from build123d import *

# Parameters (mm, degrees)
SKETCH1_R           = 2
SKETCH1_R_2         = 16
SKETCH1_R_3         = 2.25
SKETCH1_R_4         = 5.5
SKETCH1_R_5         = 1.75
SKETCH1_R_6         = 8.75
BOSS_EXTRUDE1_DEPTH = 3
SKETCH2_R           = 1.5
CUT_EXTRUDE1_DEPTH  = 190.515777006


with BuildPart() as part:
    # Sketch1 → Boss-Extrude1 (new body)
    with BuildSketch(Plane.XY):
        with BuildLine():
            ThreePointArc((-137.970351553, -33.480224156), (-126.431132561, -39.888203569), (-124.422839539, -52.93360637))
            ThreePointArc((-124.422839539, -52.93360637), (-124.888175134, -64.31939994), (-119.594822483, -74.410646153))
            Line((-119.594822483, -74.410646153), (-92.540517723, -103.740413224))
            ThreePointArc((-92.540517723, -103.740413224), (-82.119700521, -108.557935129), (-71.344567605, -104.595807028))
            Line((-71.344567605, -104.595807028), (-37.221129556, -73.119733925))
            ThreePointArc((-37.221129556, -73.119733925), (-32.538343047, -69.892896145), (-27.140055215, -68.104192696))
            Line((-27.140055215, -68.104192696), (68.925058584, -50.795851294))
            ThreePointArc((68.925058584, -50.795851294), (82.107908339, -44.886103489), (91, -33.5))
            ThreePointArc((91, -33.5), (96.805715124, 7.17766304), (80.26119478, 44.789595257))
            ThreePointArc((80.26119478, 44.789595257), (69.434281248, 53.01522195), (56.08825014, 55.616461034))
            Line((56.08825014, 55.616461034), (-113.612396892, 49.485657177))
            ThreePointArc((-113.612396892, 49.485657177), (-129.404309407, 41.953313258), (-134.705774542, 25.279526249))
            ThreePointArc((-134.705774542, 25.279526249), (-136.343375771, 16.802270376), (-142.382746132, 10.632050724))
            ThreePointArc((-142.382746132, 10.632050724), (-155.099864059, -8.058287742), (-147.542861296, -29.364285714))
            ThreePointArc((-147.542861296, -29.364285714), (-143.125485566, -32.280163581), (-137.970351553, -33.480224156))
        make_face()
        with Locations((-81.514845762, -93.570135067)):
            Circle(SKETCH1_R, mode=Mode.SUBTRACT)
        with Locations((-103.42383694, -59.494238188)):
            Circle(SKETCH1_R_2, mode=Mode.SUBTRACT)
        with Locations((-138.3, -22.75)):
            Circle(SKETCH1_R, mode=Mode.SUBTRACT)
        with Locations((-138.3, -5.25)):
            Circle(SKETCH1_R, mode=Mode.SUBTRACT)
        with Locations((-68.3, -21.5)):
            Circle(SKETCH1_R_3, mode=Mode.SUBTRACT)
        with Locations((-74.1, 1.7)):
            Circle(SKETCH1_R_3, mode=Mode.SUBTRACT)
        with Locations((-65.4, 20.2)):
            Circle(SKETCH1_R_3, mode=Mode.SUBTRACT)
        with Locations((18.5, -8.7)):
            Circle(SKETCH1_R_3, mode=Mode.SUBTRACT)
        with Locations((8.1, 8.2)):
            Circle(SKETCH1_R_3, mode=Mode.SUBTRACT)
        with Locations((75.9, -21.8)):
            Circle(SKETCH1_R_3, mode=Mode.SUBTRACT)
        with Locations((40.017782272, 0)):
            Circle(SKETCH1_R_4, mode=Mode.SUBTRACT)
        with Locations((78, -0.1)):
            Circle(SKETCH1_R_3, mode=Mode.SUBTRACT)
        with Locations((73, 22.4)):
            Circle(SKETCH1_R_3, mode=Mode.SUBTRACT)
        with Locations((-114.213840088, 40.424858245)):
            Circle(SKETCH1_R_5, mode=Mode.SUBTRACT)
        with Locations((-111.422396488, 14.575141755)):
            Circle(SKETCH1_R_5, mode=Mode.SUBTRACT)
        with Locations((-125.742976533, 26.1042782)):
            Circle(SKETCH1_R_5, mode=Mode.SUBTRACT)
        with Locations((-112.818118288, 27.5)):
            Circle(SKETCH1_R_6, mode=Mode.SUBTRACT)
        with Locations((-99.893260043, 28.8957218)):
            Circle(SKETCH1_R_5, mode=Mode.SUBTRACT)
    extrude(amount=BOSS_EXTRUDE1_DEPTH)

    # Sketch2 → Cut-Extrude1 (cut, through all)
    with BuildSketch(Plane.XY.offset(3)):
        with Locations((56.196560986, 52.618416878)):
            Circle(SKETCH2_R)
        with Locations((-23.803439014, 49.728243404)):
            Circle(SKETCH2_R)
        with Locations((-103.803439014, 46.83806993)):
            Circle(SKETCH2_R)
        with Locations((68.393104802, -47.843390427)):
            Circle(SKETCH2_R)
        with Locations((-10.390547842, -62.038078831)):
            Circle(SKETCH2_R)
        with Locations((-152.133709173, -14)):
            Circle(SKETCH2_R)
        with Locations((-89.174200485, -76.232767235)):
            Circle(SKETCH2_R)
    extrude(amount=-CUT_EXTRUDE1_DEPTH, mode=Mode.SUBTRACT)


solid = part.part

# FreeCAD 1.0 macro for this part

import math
import FreeCAD as App
import Part
import Sketcher

V = App.Vector
Q = App.Units.Quantity

doc = App.newDocument("Part")
body = doc.addObject("PartDesign::Body", "Body")

# Sketch on XY plane
sketch1 = doc.addObject("Sketcher::SketchObject", "Sketch")
body.addObject(sketch1)
sketch1.AttachmentSupport = (doc.XY_Plane, [""])
sketch1.MapMode = "FlatFace"
sketch1.addGeometry([
    Part.ArcOfCircle(Part.Circle(V(-138.740341, -48.460448, 0), V(0, 0, 1), 15), math.radians(-17.350155), math.radians(87.057563)),  # 0
    Part.ArcOfCircle(Part.Circle(V(-103.423837, -59.494238, 0), V(0, 0, 1), 22), math.radians(162.649844), math.radians(222.688998)),  # 1
    Part.LineSegment(V(-119.594822, -74.410646, 0), V(-92.540518, -103.740413, 0)),  # 2
    Part.ArcOfCircle(Part.Circle(V(-81.514846, -93.570135, 0), V(0, 0, 1), 15), math.radians(-137.311002), math.radians(-47.311002)),  # 3
    Part.LineSegment(V(-71.344568, -104.595807, 0), V(-37.22113, -73.119734, 0)),  # 4
    Part.ArcOfCircle(Part.Circle(V(-23.569947, -87.919079, 0), V(0, 0, 1), 20.133936), math.radians(100.213575), math.radians(132.688998)),  # 5
    Part.LineSegment(V(-27.140055, -68.104193, 0), V(68.925059, -50.795851, 0)),  # 6
    Part.ArcOfCircle(Part.Circle(V(63.605521, -21.271243, 0), V(0, 0, 1), 30), math.radians(-79.786425), math.radians(-24.055744)),  # 7
    Part.ArcOfCircle(Part.Circle(V(22.658915, -2.992884, 0), V(0, 0, 1), 74.841085), math.radians(-24.055744), math.radians(39.676525)),  # 8
    Part.ArcOfCircle(Part.Circle(V(57.171359, 25.636019, 0), V(0, 0, 1), 30), math.radians(39.676525), math.radians(92.069034)),  # 9
    Part.LineSegment(V(56.08825, 55.616461, 0), V(-113.612397, 49.485657, 0)),  # 10
    Part.ArcOfCircle(Part.Circle(V(-112.818118, 27.5, 0), V(0, 0, 1), 22), math.radians(92.069032), math.radians(185.792763)),  # 11
    Part.ArcOfCircle(Part.Circle(V(-149.629177, 23.765567, 0), V(0, 0, 1), 15), math.radians(-61.112239), math.radians(5.792763)),  # 12
    Part.ArcOfCircle(Part.Circle(V(-130.305362, -11.257143, 0), V(0, 0, 1), 25), math.radians(118.887761), math.radians(226.40946)),  # 13
    Part.ArcOfCircle(Part.Circle(V(-137.200362, -18.5, 0), V(0, 0, 1), 15), math.radians(-133.59054), math.radians(-92.942437)),  # 14
    Part.Circle(V(-81.514846, -93.570135, 0), V(0, 0, 1), 2),  # 15
    Part.Circle(V(-103.423837, -59.494238, 0), V(0, 0, 1), 16),  # 16
    Part.Circle(V(-138.3, -22.75, 0), V(0, 0, 1), 2),  # 17
    Part.Circle(V(-138.3, -5.25, 0), V(0, 0, 1), 2),  # 18
    Part.Circle(V(-68.3, -21.5, 0), V(0, 0, 1), 2.25),  # 19
    Part.Circle(V(-74.1, 1.7, 0), V(0, 0, 1), 2.25),  # 20
    Part.Circle(V(-111.422396, 14.575142, 0), V(0, 0, 1), 1.75),  # 21
    Part.Circle(V(-125.742977, 26.104278, 0), V(0, 0, 1), 1.75),  # 22
    Part.Circle(V(-112.818118, 27.5, 0), V(0, 0, 1), 8.75),  # 23
    Part.Circle(V(-114.21384, 40.424858, 0), V(0, 0, 1), 1.75),  # 24
    Part.Circle(V(-99.89326, 28.895722, 0), V(0, 0, 1), 1.75),  # 25
    Part.Circle(V(-65.4, 20.2, 0), V(0, 0, 1), 2.25),  # 26
    Part.Circle(V(18.5, -8.7, 0), V(0, 0, 1), 2.25),  # 27
    Part.Circle(V(75.9, -21.8, 0), V(0, 0, 1), 2.25),  # 28
    Part.Circle(V(40.017782, 0, 0), V(0, 0, 1), 5.5),  # 29
    Part.Circle(V(78, -0.1, 0), V(0, 0, 1), 2.25),  # 30
    Part.Circle(V(8.1, 8.2, 0), V(0, 0, 1), 2.25),  # 31
    Part.Circle(V(73, 22.4, 0), V(0, 0, 1), 2.25),  # 32
], False)
sketch1.addConstraint([
    Sketcher.Constraint("Tangent", 0, 1, 1, 1),
    Sketcher.Constraint("Tangent", 1, 2, 2, 1),
    Sketcher.Constraint("Tangent", 2, 2, 3, 1),
    Sketcher.Constraint("Tangent", 3, 2, 4, 1),
    Sketcher.Constraint("Tangent", 4, 2, 5, 2),
    Sketcher.Constraint("Tangent", 5, 1, 6, 1),
    Sketcher.Constraint("Tangent", 6, 2, 7, 1),
    Sketcher.Constraint("Tangent", 7, 2, 8, 1),
    Sketcher.Constraint("Tangent", 8, 2, 9, 1),
    Sketcher.Constraint("Tangent", 9, 2, 10, 1),
    Sketcher.Constraint("Tangent", 10, 2, 11, 1),
    Sketcher.Constraint("Tangent", 11, 2, 12, 2),
    Sketcher.Constraint("Tangent", 12, 1, 13, 1),
    Sketcher.Constraint("Tangent", 13, 2, 14, 1),
    Sketcher.Constraint("Tangent", 14, 2, 0, 2),
    Sketcher.Constraint("Coincident", 15, 3, 3, 3),
    Sketcher.Constraint("Coincident", 16, 3, 1, 3),
    Sketcher.Constraint("Coincident", 23, 3, 11, 3),
    Sketcher.Constraint("Equal", 0, 3),
    Sketcher.Constraint("Equal", 7, 9),
    Sketcher.Constraint("Equal", 1, 11),
    Sketcher.Constraint("Equal", 3, 12),
    Sketcher.Constraint("Equal", 12, 14),
    Sketcher.Constraint("Equal", 15, 17),
    Sketcher.Constraint("Equal", 17, 18),
    Sketcher.Constraint("Equal", 19, 20),
    Sketcher.Constraint("Equal", 21, 22),
    Sketcher.Constraint("Equal", 22, 24),
    Sketcher.Constraint("Equal", 24, 25),
    Sketcher.Constraint("Equal", 20, 26),
    Sketcher.Constraint("Equal", 26, 27),
    Sketcher.Constraint("Equal", 27, 28),
    Sketcher.Constraint("Equal", 28, 30),
    Sketcher.Constraint("Equal", 30, 31),
    Sketcher.Constraint("Equal", 31, 32),
    Sketcher.Constraint("PointOnObject", 29, 3, -1),
    Sketcher.Constraint("Perpendicular", 2, 4),
    Sketcher.Constraint("Vertical", 17, 3, 18, 3),
    Sketcher.Constraint("Diameter", 15, Q("4 mm")),
    Sketcher.Constraint("Diameter", 16, Q("32 mm")),
    Sketcher.Constraint("Diameter", 29, Q("11 mm")),
    Sketcher.Constraint("Radius", 0, Q("15 mm")),
    Sketcher.Constraint("Radius", 1, Q("22 mm")),
    Sketcher.Constraint("Radius", 7, Q("30 mm")),
    Sketcher.Constraint("Radius", 13, Q("25 mm")),
    Sketcher.Constraint("Diameter", 19, Q("4.5 mm")),
    Sketcher.Constraint("Diameter", 21, Q("3.5 mm")),
    Sketcher.Constraint("Diameter", 23, Q("17.5 mm")),
    Sketcher.Constraint("DistanceX", -1, 1, 30, 3, Q("78 mm")),
    Sketcher.Constraint("DistanceX", -1, 1, 32, 3, Q("73 mm")),
    Sketcher.Constraint("DistanceX", -1, 1, 7, 2, Q("91 mm")),
    Sketcher.Constraint("DistanceY", 14, 3, 11, 3, Q("46 mm")),
    Sketcher.Constraint("DistanceY", 19, 3, 11, 3, Q("49 mm")),
    Sketcher.Constraint("DistanceY", -1, 1, 11, 3, Q("27.5 mm")),
    Sketcher.Constraint("DistanceX", 17, 3, -1, 1, Q("138.3 mm")),
    Sketcher.Constraint("DistanceX", 19, 3, -1, 1, Q("68.3 mm")),
    Sketcher.Constraint("DistanceX", 20, 3, -1, 1, Q("74.1 mm")),
    Sketcher.Constraint("DistanceY", -1, 1, 20, 3, Q("1.7 mm")),
    Sketcher.Constraint("DistanceX", 26, 3, -1, 1, Q("65.4 mm")),
    Sketcher.Constraint("DistanceY", -1, 1, 26, 3, Q("20.2 mm")),
    Sketcher.Constraint("DistanceX", -1, 1, 27, 3, Q("18.5 mm")),
    Sketcher.Constraint("DistanceY", 27, 3, -1, 1, Q("8.7 mm")),
    Sketcher.Constraint("DistanceX", -1, 1, 28, 3, Q("75.9 mm")),
    Sketcher.Constraint("DistanceY", 28, 3, -1, 1, Q("21.8 mm")),
    Sketcher.Constraint("DistanceY", 30, 3, -1, 1, Q("0.1 mm")),
    Sketcher.Constraint("DistanceX", -1, 1, 31, 3, Q("8.1 mm")),
    Sketcher.Constraint("DistanceY", -1, 1, 31, 3, Q("8.2 mm")),
    Sketcher.Constraint("DistanceY", -1, 1, 32, 3, Q("22.4 mm")),
    Sketcher.Constraint("DistanceY", 7, 2, -1, 1, Q("33.5 mm")),
    Sketcher.Constraint("DistanceY", 17, 3, 18, 3, Q("17.5 mm")),
    Sketcher.Constraint("DistanceY", 17, 3, -1, 1, Q("22.75 mm")),
    Sketcher.Constraint("Radius", 5, Q("20.133936 mm")),
    Sketcher.Constraint("Radius", 8, Q("74.841085 mm")),
    Sketcher.Constraint("DistanceX", 14, 3, 13, 3, Q("6.895 mm")),
    Sketcher.Constraint("DistanceX", 3, 3, 5, 3, Q("57.944898 mm")),
    Sketcher.Constraint("DistanceY", 5, 3, 9, 3, Q("113.555099 mm")),
    Sketcher.Constraint("DistanceY", 3, 3, 12, 3, Q("117.335702 mm")),
    Sketcher.Constraint("DistanceX", 12, 3, 22, 3, Q("23.8862 mm")),
    Sketcher.Constraint("DistanceX", 0, 3, 0, 1, Q("14.317502 mm")),
    Sketcher.Constraint("DistanceY", 3, 3, 4, 2, Q("20.450401 mm")),
    Sketcher.Constraint("DistanceY", 24, 3, 10, 2, Q("9.060799 mm")),
    Sketcher.Constraint("DistanceX", 11, 2, 22, 3, Q("8.962798 mm")),
    Sketcher.Constraint("Distance", 6, Q("97.611909 mm")),
    Sketcher.Constraint("DistanceX", 0, 3, -1, 1, Q("138.740341 mm")),
    Sketcher.Constraint("DistanceY", 0, 3, -1, 1, Q("48.460448 mm")),
    Sketcher.Constraint("DistanceY", -1, 1, 21, 3, Q("14.575142 mm")),
    Sketcher.Constraint("DistanceY", -1, 1, 22, 3, Q("26.104278 mm")),
    Sketcher.Constraint("DistanceX", 24, 3, -1, 1, Q("114.21384 mm")),
    Sketcher.Constraint("DistanceX", 25, 3, -1, 1, Q("99.89326 mm")),
    Sketcher.Constraint("DistanceY", -1, 1, 25, 3, Q("28.895722 mm")),
    Sketcher.Constraint("DistanceX", 11, 3, 21, 3, Q("1.395722 mm")),
    Sketcher.Constraint("DistanceX", 29, 3, 7, 3, Q("23.587738 mm")),
])
pad1 = doc.addObject("PartDesign::Pad", "Pad")
body.addObject(pad1)
pad1.Profile = sketch1
pad1.Length = 3

# Sketch on XY plane
sketch2 = doc.addObject("Sketcher::SketchObject", "Sketch001")
body.addObject(sketch2)
sketch2.AttachmentSupport = (doc.XY_Plane, [""])
sketch2.MapMode = "FlatFace"
sketch2.AttachmentOffset = App.Placement(V(0, 0, 3), App.Rotation())
sketch2.addGeometry([
    Part.Circle(V(56.196561, 52.618417, 0), V(0, 0, 1), 1.5),  # 0
    Part.Circle(V(-23.803439, 49.728243, 0), V(0, 0, 1), 1.5),  # 1
    Part.Circle(V(-103.803439, 46.83807, 0), V(0, 0, 1), 1.5),  # 2
    Part.Circle(V(68.393105, -47.84339, 0), V(0, 0, 1), 1.5),  # 3
    Part.Circle(V(-10.390548, -62.038079, 0), V(0, 0, 1), 1.5),  # 4
    Part.Circle(V(-152.133709, -14, 0), V(0, 0, 1), 1.5),  # 5
    Part.Circle(V(-89.1742, -76.232767, 0), V(0, 0, 1), 1.5),  # 6
], False)
sketch2.addConstraint([
    Sketcher.Constraint("Equal", 0, 1),
    Sketcher.Constraint("Equal", 1, 2),
    Sketcher.Constraint("Equal", 2, 3),
    Sketcher.Constraint("Equal", 3, 4),
    Sketcher.Constraint("Equal", 4, 5),
    Sketcher.Constraint("Equal", 5, 6),
    Sketcher.Constraint("Diameter", 0, Q("3 mm")),
    Sketcher.Constraint("DistanceY", 5, 3, -1, 1, Q("14 mm")),
    Sketcher.Constraint("DistanceX", 1, 3, 0, 3, Q("80 mm")),
    Sketcher.Constraint("DistanceX", 2, 3, 1, 3, Q("80 mm")),
    Sketcher.Constraint("DistanceX", 6, 3, -1, 1, Q("89.1742 mm")),
    Sketcher.Constraint("DistanceX", -1, 1, 0, 3, Q("56.196561 mm")),
    Sketcher.Constraint("DistanceY", -1, 1, 2, 3, Q("46.83807 mm")),
    Sketcher.Constraint("DistanceY", 3, 3, -1, 1, Q("47.84339 mm")),
    Sketcher.Constraint("DistanceY", 4, 3, -1, 1, Q("62.038079 mm")),
    Sketcher.Constraint("DistanceX", 5, 3, -1, 1, Q("152.133709 mm")),
    Sketcher.Constraint("DistanceX", 1, 3, 4, 3, Q("13.412891 mm")),
    Sketcher.Constraint("DistanceY", 6, 3, 4, 3, Q("14.194688 mm")),
    Sketcher.Constraint("DistanceY", 6, 3, 1, 3, Q("125.961011 mm")),
    Sketcher.Constraint("DistanceY", -1, 1, 0, 3, Q("52.618417 mm")),
    Sketcher.Constraint("DistanceX", -1, 1, 3, 3, Q("68.393105 mm")),
])
pocket1 = doc.addObject("PartDesign::Pocket", "Pocket")
body.addObject(pocket1)
pocket1.Profile = sketch2
pocket1.Type = "ThroughAll"

doc.recompute()
